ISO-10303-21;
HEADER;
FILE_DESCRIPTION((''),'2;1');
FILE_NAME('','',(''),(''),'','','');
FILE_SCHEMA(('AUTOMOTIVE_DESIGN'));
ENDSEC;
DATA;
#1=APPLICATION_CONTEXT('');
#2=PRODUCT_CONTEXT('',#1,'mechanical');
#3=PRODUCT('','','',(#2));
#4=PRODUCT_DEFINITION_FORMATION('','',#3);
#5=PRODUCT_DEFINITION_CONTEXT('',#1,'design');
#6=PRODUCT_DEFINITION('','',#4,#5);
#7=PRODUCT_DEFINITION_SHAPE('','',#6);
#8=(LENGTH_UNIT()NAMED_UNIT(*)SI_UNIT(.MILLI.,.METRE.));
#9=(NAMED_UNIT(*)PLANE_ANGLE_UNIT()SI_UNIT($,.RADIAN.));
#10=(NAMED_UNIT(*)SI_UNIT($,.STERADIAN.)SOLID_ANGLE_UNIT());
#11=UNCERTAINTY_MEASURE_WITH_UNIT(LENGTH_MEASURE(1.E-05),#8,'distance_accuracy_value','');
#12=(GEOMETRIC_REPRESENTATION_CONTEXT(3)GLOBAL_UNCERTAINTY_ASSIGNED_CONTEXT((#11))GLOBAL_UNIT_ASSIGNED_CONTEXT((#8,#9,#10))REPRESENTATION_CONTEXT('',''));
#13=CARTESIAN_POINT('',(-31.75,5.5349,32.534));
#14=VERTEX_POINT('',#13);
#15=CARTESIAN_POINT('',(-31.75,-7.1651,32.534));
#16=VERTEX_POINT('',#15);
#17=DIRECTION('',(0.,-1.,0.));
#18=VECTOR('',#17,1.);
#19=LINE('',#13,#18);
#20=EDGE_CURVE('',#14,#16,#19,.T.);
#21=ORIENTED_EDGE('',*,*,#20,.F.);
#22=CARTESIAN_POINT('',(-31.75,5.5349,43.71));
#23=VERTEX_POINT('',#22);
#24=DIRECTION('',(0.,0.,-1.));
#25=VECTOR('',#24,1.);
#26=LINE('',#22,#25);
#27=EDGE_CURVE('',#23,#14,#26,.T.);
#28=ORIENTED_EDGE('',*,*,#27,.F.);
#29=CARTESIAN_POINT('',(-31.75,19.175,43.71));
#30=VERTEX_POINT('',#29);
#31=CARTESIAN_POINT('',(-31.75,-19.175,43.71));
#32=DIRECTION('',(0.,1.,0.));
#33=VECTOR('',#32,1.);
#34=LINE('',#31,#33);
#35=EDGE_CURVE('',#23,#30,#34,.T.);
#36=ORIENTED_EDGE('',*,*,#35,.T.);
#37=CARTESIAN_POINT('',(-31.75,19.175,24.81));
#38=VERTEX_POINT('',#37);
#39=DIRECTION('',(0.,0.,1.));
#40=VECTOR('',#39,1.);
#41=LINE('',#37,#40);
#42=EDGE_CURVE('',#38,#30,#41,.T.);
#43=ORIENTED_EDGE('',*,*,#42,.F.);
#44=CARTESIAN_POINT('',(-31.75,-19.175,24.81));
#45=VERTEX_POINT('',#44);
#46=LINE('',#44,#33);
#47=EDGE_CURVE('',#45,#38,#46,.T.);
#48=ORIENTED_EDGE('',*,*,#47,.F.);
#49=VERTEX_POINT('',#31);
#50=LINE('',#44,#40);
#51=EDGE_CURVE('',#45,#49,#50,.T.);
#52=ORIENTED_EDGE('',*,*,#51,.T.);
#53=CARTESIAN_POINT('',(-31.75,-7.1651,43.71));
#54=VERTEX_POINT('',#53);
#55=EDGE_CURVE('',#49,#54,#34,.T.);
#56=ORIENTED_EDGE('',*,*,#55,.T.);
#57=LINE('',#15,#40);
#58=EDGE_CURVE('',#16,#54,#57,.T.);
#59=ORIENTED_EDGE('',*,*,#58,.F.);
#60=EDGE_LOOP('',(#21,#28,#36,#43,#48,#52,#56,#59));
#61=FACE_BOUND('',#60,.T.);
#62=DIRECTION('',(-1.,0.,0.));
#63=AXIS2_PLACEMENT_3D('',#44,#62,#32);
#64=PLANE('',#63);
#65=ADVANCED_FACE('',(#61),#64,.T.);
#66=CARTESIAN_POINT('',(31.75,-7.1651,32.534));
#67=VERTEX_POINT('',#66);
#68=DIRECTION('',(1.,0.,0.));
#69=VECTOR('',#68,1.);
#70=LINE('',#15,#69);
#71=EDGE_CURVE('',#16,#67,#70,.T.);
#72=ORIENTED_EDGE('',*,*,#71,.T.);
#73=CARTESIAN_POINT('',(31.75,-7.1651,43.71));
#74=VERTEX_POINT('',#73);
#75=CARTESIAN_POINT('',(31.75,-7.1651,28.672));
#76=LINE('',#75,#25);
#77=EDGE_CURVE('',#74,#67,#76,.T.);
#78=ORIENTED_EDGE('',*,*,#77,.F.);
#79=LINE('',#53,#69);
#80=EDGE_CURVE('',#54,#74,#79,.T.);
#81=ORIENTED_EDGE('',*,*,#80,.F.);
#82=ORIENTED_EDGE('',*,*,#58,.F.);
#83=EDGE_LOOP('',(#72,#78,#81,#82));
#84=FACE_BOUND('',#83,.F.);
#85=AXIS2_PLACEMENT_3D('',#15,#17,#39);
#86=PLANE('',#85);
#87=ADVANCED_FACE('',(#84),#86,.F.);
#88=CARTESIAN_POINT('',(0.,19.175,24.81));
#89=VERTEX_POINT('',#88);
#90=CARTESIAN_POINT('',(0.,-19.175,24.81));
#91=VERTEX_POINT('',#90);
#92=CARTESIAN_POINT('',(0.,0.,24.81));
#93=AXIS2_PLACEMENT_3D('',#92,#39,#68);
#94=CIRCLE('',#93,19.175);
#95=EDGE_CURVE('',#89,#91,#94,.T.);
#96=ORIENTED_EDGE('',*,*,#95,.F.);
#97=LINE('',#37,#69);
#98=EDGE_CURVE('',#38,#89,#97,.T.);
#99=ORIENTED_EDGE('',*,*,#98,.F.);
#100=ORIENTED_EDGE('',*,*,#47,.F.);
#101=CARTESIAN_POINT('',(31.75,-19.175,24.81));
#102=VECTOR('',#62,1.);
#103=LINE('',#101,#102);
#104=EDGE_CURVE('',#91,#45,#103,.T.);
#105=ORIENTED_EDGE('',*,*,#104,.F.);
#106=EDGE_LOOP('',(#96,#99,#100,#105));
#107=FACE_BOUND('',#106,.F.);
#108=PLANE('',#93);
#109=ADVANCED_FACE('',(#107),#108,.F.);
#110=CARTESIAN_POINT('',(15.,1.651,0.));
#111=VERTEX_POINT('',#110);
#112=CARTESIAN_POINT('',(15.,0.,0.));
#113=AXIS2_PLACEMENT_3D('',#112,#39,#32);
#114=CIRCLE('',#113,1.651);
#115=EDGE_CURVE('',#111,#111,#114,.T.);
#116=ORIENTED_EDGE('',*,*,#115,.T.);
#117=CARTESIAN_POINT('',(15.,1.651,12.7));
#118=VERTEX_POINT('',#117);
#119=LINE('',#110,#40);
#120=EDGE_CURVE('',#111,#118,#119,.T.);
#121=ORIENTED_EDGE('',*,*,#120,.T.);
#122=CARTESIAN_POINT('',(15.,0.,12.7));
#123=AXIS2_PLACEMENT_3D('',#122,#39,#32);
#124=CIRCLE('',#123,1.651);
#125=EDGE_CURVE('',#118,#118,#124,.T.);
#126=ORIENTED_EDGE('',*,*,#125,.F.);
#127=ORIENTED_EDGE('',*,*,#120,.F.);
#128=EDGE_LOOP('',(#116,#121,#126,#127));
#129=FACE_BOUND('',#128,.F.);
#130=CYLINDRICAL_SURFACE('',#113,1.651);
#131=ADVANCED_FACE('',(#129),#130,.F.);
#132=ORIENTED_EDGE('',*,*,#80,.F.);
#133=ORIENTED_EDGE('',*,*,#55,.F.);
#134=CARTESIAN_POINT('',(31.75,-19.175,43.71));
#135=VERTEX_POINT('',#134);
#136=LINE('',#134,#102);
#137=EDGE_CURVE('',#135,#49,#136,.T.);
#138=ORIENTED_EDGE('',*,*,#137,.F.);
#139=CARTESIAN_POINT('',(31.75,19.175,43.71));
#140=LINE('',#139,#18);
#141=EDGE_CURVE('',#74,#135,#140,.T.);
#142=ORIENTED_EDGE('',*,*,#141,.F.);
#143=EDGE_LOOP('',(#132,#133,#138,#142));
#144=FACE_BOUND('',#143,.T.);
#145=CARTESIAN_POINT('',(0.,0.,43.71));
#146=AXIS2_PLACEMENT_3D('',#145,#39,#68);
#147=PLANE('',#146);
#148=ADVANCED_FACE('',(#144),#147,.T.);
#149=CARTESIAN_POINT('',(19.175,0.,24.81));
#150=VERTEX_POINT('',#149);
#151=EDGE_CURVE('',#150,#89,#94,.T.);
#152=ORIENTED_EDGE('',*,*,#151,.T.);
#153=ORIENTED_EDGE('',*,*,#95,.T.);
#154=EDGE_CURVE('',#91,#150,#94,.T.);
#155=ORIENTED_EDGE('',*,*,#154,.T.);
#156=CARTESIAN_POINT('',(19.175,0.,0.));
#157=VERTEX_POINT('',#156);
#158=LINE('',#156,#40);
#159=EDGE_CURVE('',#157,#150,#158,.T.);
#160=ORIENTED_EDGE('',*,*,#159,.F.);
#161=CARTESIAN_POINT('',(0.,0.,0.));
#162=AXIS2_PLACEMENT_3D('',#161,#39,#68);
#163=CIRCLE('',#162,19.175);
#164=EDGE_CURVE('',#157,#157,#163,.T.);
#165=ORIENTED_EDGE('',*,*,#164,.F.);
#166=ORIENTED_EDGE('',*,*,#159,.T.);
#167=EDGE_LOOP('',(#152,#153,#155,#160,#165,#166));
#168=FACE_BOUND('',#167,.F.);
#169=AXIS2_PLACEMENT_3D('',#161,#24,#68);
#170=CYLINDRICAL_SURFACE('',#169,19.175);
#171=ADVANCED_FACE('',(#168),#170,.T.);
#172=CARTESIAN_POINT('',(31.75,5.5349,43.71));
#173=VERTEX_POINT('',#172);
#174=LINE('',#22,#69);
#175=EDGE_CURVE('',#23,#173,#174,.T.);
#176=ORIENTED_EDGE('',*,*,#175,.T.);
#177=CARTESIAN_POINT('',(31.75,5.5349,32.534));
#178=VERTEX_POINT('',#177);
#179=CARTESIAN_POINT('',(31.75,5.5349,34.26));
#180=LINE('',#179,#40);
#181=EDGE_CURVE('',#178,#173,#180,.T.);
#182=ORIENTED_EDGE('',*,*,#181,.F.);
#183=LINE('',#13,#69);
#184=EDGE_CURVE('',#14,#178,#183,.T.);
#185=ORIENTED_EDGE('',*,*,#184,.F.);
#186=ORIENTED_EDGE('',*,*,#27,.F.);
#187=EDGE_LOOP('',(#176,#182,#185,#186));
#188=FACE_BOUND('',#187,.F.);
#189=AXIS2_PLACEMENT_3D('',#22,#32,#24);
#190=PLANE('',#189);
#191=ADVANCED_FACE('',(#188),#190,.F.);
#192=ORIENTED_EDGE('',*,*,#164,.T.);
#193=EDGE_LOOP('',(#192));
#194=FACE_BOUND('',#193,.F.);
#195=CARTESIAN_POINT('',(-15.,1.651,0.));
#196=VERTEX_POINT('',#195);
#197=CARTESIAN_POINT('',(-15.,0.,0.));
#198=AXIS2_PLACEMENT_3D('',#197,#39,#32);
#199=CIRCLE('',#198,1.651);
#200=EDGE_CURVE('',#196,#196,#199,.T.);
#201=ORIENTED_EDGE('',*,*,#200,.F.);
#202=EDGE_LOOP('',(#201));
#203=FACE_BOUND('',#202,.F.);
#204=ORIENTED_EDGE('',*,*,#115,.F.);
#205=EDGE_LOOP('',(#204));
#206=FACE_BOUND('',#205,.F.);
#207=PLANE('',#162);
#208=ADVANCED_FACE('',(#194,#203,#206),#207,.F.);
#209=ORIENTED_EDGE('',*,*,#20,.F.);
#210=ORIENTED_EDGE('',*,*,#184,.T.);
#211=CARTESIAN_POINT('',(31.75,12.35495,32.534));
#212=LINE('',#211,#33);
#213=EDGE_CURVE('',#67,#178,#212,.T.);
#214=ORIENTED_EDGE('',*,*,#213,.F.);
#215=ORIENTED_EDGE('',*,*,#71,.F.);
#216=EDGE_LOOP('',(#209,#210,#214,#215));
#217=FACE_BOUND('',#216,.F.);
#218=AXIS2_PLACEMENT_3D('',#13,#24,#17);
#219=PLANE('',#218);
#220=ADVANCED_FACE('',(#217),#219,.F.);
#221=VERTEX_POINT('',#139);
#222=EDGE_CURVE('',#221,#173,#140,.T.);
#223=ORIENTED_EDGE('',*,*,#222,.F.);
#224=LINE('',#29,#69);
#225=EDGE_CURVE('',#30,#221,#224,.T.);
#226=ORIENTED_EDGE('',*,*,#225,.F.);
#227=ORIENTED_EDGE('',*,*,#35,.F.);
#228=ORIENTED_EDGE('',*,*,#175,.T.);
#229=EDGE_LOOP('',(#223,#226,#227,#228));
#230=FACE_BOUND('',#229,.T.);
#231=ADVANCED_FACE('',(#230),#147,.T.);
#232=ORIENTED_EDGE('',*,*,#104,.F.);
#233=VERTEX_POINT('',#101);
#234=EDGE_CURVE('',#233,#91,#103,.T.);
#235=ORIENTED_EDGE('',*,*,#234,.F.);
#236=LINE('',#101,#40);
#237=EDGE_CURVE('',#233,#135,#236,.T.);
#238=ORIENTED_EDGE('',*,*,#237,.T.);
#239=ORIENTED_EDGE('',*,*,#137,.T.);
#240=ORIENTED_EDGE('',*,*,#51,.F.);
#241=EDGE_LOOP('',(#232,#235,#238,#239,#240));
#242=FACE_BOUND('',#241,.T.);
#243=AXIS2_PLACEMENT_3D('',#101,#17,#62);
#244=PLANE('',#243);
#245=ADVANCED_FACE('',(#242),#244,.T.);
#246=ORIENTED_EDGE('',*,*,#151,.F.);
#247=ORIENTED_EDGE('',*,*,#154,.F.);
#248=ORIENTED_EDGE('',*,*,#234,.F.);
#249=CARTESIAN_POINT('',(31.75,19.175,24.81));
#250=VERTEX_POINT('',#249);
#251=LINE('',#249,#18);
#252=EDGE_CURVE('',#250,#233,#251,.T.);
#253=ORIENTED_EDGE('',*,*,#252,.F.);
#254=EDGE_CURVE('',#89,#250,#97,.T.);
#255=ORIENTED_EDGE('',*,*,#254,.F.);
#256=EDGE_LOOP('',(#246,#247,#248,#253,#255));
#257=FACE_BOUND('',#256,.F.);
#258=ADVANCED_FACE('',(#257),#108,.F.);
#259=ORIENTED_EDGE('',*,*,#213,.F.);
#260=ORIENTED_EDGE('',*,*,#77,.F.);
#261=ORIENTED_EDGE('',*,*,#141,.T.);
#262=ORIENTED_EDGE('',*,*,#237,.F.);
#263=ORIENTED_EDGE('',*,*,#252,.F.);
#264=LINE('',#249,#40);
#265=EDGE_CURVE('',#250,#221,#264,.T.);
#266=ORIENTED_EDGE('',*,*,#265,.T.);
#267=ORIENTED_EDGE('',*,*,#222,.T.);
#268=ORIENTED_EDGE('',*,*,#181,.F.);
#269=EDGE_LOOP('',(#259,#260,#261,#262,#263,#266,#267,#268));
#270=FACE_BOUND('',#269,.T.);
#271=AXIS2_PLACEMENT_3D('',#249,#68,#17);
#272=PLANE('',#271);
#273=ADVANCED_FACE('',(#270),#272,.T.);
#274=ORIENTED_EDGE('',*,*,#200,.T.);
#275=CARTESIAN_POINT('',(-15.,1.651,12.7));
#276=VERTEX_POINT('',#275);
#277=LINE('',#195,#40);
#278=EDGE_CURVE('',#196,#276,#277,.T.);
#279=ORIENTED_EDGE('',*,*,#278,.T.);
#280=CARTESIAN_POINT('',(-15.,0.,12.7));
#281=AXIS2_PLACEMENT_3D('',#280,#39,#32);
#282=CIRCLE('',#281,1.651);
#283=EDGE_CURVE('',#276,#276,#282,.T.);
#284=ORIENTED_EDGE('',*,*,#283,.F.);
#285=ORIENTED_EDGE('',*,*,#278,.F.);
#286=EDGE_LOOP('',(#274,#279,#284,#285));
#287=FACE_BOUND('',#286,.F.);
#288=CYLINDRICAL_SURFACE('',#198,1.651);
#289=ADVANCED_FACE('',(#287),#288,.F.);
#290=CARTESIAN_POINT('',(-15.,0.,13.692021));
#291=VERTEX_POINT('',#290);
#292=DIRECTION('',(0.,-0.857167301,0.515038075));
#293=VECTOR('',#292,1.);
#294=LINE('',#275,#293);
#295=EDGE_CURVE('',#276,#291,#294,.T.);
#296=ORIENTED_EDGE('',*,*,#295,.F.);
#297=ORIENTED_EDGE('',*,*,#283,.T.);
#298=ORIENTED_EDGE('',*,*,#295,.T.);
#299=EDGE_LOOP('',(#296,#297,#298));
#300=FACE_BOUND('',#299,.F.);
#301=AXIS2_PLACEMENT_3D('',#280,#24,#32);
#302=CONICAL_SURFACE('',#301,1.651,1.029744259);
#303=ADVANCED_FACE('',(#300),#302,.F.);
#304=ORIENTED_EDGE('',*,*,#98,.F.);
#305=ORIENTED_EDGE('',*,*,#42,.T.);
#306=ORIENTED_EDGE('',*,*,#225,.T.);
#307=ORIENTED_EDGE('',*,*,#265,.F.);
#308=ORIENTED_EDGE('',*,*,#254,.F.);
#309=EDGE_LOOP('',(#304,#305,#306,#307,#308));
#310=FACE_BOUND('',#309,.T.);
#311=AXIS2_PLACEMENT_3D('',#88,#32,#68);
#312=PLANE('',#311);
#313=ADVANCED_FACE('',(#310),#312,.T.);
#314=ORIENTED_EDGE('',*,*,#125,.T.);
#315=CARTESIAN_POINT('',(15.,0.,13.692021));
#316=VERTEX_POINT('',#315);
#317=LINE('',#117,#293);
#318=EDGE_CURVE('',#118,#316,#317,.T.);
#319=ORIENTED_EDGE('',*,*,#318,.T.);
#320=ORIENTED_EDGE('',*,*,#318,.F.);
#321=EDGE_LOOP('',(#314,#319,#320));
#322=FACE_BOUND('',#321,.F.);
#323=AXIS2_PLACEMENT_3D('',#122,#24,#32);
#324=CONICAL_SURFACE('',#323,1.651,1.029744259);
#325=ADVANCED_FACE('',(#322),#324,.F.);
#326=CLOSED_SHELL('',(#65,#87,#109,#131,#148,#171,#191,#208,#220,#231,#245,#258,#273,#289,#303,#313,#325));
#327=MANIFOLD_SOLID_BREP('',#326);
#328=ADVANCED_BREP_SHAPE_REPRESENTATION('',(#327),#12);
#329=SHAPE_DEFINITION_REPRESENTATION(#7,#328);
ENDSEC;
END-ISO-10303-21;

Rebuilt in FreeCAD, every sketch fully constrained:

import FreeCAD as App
import Part
import Sketcher

V = App.Vector
Q = App.Units.Quantity

doc = App.newDocument("Part")
body = doc.addObject("PartDesign::Body", "Body")

# Sketch on XY plane
sketch1 = body.newObject("Sketcher::SketchObject", "Sketch")
sketch1.AttachmentSupport = (doc.getObject("XY_Plane"), [""])
sketch1.MapMode = "FlatFace"
sketch1.addGeometry(Part.Circle(V(0, 0, 0), V(0, 0, 1), 19), False)
sketch1.addConstraint([
    Sketcher.Constraint("Coincident", 0, 3, -1, 1),
    Sketcher.Constraint("Diameter", 0, Q("38.35 mm")),
])
pad1 = body.newObject("PartDesign::Pad", "Pad")
pad1.Profile = sketch1
pad1.Length = 24.81

# Sketch on XY plane
sketch2 = body.newObject("Sketcher::SketchObject", "Sketch001")
sketch2.AttachmentSupport = (doc.getObject("XY_Plane"), [""])
sketch2.MapMode = "FlatFace"
sketch2.AttachmentOffset = App.Placement(V(0, 0, 24.81), App.Rotation())
sketch2.addGeometry([
    Part.LineSegment(V(32, -19, 0), V(32, 19, 0)),
    Part.LineSegment(V(32, 19, 0), V(-32, 19, 0)),
    Part.LineSegment(V(-32, 19, 0), V(-32, -19, 0)),
    Part.LineSegment(V(-32, -19, 0), V(32, -19, 0)),
], False)
sketch2.addConstraint([
    Sketcher.Constraint("Coincident", 0, 2, 1, 1),
    Sketcher.Constraint("Coincident", 1, 2, 2, 1),
    Sketcher.Constraint("Coincident", 2, 2, 3, 1),
    Sketcher.Constraint("Coincident", 3, 2, 0, 1),
    Sketcher.Constraint("Vertical", 0),
    Sketcher.Constraint("Horizontal", 1),
    Sketcher.Constraint("Vertical", 2),
    Sketcher.Constraint("Horizontal", 3),
    Sketcher.Constraint("Symmetric", 0, 2, 2, 2, -1, 1),
    Sketcher.Constraint("DistanceX", 1, 2, 1, 1, Q("2.5 in")),
    Sketcher.Constraint("DistanceY", 0, 1, 0, 2, Q("38.35 mm")),
])
pad2 = body.newObject("PartDesign::Pad", "Pad001")
pad2.Profile = sketch2
pad2.Length = Q("0.7440945 in")

# Sketch on XY plane
sketch3 = body.newObject("Sketcher::SketchObject", "Sketch002")
sketch3.AttachmentSupport = (doc.getObject("XY_Plane"), [""])
sketch3.MapMode = "FlatFace"
sketch3.addGeometry([
    Part.Circle(V(15, 0, 0), V(0, 0, 1), 1.7),
    Part.Circle(V(-15, 0, 0), V(0, 0, 1), 1.7),
], False)
sketch3.addConstraint([
    Sketcher.Constraint("Equal", 0, 1),
    Sketcher.Constraint("Symmetric", 0, 3, 1, 3, -1, 1),
    Sketcher.Constraint("PointOnObject", 0, 3, -1),
    Sketcher.Constraint("Diameter", 0, Q("0.13 in")),
    Sketcher.Constraint("DistanceX", 1, 3, 0, 3, Q("1.1811 in")),
])
doc.recompute()
hole = body.newObject("PartDesign::Hole", "Hole")
hole.Profile = sketch3
hole.ThreadType = "None"
hole.Diameter = Q("0.13 in")
hole.DepthType = "Dimension"
hole.Depth = Q("0.5 in")
hole.DrillPoint = "Angled"
hole.DrillPointAngle = 118
hole.Reversed = True

# Sketch on YZ plane
sketch4 = body.newObject("Sketcher::SketchObject", "Sketch003")
sketch4.AttachmentSupport = (doc.getObject("YZ_Plane"), [""])
sketch4.MapMode = "FlatFace"
sketch4.AttachmentOffset = App.Placement(V(0, 0, -1.25 * 25.4), App.Rotation())
sketch4.addGeometry([
    Part.LineSegment(V(-7, 33, 0), V(-7, 44, 0)),
    Part.LineSegment(V(-7, 44, 0), V(6, 44, 0)),
    Part.LineSegment(V(6, 44, 0), V(6, 33, 0)),
    Part.LineSegment(V(6, 33, 0), V(-7, 33, 0)),
], False)
sketch4.addConstraint([
    Sketcher.Constraint("Coincident", 0, 2, 1, 1),
    Sketcher.Constraint("Coincident", 1, 2, 2, 1),
    Sketcher.Constraint("Coincident", 2, 2, 3, 1),
    Sketcher.Constraint("Coincident", 3, 2, 0, 1),
    Sketcher.Constraint("Vertical", 0),
    Sketcher.Constraint("Horizontal", 1),
    Sketcher.Constraint("Vertical", 2),
    Sketcher.Constraint("Horizontal", 3),
    Sketcher.Constraint("DistanceX", 1, 1, 1, 2, Q("0.5 in")),
    Sketcher.Constraint("DistanceY", 0, 1, 0, 2, Q("0.44 in")),
    Sketcher.Constraint("DistanceX", 0, 2, -1, 1, Q("0.2821 in")),
    Sketcher.Constraint("DistanceY", -1, 1, 0, 2, Q("43.71 mm")),
])
pocket1 = body.newObject("PartDesign::Pocket", "Pocket")
pocket1.Profile = sketch4
pocket1.Type = "ThroughAll"
pocket1.Reversed = True

doc.recompute()
